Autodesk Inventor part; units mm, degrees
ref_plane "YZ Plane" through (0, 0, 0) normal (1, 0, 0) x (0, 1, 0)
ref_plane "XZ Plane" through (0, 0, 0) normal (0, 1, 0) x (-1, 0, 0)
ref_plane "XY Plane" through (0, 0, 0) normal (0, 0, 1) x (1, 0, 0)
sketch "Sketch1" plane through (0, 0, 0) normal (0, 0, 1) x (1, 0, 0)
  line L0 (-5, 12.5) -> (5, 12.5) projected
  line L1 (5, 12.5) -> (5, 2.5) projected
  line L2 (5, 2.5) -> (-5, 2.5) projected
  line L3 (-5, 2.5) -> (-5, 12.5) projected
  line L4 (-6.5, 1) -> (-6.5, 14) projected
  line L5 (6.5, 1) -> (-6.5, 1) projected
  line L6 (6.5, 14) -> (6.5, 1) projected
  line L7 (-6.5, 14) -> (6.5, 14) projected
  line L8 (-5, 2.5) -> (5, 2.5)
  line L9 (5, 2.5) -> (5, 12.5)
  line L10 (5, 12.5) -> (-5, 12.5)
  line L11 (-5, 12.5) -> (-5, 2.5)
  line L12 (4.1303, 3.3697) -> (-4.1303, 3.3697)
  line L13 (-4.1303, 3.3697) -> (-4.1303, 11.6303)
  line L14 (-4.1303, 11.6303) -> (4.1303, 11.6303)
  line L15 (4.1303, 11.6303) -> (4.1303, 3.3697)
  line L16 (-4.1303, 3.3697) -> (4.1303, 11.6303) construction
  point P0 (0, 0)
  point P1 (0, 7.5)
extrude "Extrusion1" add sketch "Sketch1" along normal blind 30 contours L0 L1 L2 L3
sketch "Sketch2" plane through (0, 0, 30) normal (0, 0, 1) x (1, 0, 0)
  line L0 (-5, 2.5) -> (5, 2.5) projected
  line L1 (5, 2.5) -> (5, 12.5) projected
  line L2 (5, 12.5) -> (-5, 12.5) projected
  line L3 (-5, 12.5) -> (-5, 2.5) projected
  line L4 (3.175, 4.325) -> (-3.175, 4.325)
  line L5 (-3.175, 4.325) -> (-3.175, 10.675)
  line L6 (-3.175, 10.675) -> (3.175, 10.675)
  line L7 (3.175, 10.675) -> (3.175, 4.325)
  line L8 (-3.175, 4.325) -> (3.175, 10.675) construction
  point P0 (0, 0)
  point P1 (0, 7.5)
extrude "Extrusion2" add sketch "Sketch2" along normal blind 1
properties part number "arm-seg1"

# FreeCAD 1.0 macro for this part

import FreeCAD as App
import Part
import Sketcher
from FreeCAD import Vector

doc = App.newDocument("Part")
params = doc.addObject("Spreadsheet::Sheet", "Params")
for row, (alias, value) in enumerate([
    ("sketch1_width", "10 mm"),
    ("pad1_length", "30 mm"),
    ("sketch2_width", "10 mm"),
    ("sketch2_width2", "6.35 mm"),
    ("pad2_length", "1 mm"),
], start=1):
    params.set(f"A{row}", alias)
    params.set(f"B{row}", "=" + value)
    params.setAlias(f"B{row}", alias)

body = doc.addObject("PartDesign::Body", "Body")

# Sketch on XY plane
sketch1 = body.newObject("Sketcher::SketchObject", "Sketch")
sketch1.AttachmentSupport = (doc.getObject("XY_Plane"), [""])
sketch1.MapMode = "FlatFace"
sketch1.addGeometry(Part.LineSegment(Vector(5, 12.5, 0), Vector(-5, 12.5, 0)), False)
sketch1.addGeometry(Part.LineSegment(Vector(-5, 12.5, 0), Vector(-5, 2.5, 0)), False)
sketch1.addGeometry(Part.LineSegment(Vector(-5, 2.5, 0), Vector(5, 2.5, 0)), False)
sketch1.addGeometry(Part.LineSegment(Vector(5, 2.5, 0), Vector(5, 12.5, 0)), False)
sketch1.addGeometry(Part.LineSegment(Vector(4.1303, 11.6303, 0), Vector(4.1303, 3.3697, 0)), False)
sketch1.addGeometry(Part.LineSegment(Vector(4.1303, 3.3697, 0), Vector(-4.1303, 3.3697, 0)), False)
sketch1.addGeometry(Part.LineSegment(Vector(-4.1303, 3.3697, 0), Vector(-4.1303, 11.6303, 0)), False)
sketch1.addGeometry(Part.LineSegment(Vector(-4.1303, 11.6303, 0), Vector(4.1303, 11.6303, 0)), False)
sketch1.addConstraint(Sketcher.Constraint("Coincident", 0, 2, 1, 1))
sketch1.addConstraint(Sketcher.Constraint("Coincident", 1, 2, 2, 1))
sketch1.addConstraint(Sketcher.Constraint("Coincident", 2, 2, 3, 1))
sketch1.addConstraint(Sketcher.Constraint("Coincident", 3, 2, 0, 1))
sketch1.addConstraint(Sketcher.Constraint("Coincident", 4, 2, 5, 1))
sketch1.addConstraint(Sketcher.Constraint("Coincident", 5, 2, 6, 1))
sketch1.addConstraint(Sketcher.Constraint("Coincident", 6, 2, 7, 1))
sketch1.addConstraint(Sketcher.Constraint("Coincident", 7, 2, 4, 1))
sketch1.addConstraint(Sketcher.Constraint("Horizontal", 0))
sketch1.addConstraint(Sketcher.Constraint("Vertical", 1))
sketch1.addConstraint(Sketcher.Constraint("Horizontal", 2))
sketch1.addConstraint(Sketcher.Constraint("Vertical", 3))
sketch1.addConstraint(Sketcher.Constraint("Vertical", 4))
sketch1.addConstraint(Sketcher.Constraint("Horizontal", 5))
sketch1.addConstraint(Sketcher.Constraint("Vertical", 6))
sketch1.addConstraint(Sketcher.Constraint("Horizontal", 7))
sketch1.addConstraint(Sketcher.Constraint("Equal", 2, 1))
sketch1.addConstraint(Sketcher.Constraint("Equal", 7, 4))
sketch1.addConstraint(Sketcher.Constraint("DistanceX", 0, 2, 0, 1, 10.0))
sketch1.addConstraint(Sketcher.Constraint("DistanceX", 0, 2, -1, 1, 5.0))
sketch1.addConstraint(Sketcher.Constraint("DistanceY", -1, 1, 0, 2, 12.5))
sketch1.addConstraint(Sketcher.Constraint("DistanceX", 5, 2, 5, 1, 8.2606))
sketch1.addConstraint(Sketcher.Constraint("DistanceX", -1, 1, 4, 2, 4.1303))
sketch1.addConstraint(Sketcher.Constraint("DistanceY", -1, 1, 4, 2, 3.3697))
sketch1.setExpression("Constraints[18]", "Params.sketch1_width")
pad1 = body.newObject("PartDesign::Pad", "Pad")
pad1.Profile = sketch1
pad1.setExpression("Length", "Params.pad1_length")

# Sketch on XY plane
sketch2 = body.newObject("Sketcher::SketchObject", "Sketch001")
sketch2.AttachmentSupport = (doc.getObject("XY_Plane"), [""])
sketch2.MapMode = "FlatFace"
sketch2.AttachmentOffset = App.Placement(Vector(0, 0, 30), App.Rotation())
sketch2.addGeometry(Part.LineSegment(Vector(-5, 12.5, 0), Vector(-5, 2.5, 0)), False)
sketch2.addGeometry(Part.LineSegment(Vector(-5, 2.5, 0), Vector(5, 2.5, 0)), False)
sketch2.addGeometry(Part.LineSegment(Vector(5, 2.5, 0), Vector(5, 12.5, 0)), False)
sketch2.addGeometry(Part.LineSegment(Vector(5, 12.5, 0), Vector(-5, 12.5, 0)), False)
sketch2.addGeometry(Part.LineSegment(Vector(3.175, 10.675, 0), Vector(3.175, 4.325, 0)), False)
sketch2.addGeometry(Part.LineSegment(Vector(3.175, 4.325, 0), Vector(-3.175, 4.325, 0)), False)
sketch2.addGeometry(Part.LineSegment(Vector(-3.175, 4.325, 0), Vector(-3.175, 10.675, 0)), False)
sketch2.addGeometry(Part.LineSegment(Vector(-3.175, 10.675, 0), Vector(3.175, 10.675, 0)), False)
sketch2.addConstraint(Sketcher.Constraint("Coincident", 0, 2, 1, 1))
sketch2.addConstraint(Sketcher.Constraint("Coincident", 1, 2, 2, 1))
sketch2.addConstraint(Sketcher.Constraint("Coincident", 2, 2, 3, 1))
sketch2.addConstraint(Sketcher.Constraint("Coincident", 3, 2, 0, 1))
sketch2.addConstraint(Sketcher.Constraint("Coincident", 4, 2, 5, 1))
sketch2.addConstraint(Sketcher.Constraint("Coincident", 5, 2, 6, 1))
sketch2.addConstraint(Sketcher.Constraint("Coincident", 6, 2, 7, 1))
sketch2.addConstraint(Sketcher.Constraint("Coincident", 7, 2, 4, 1))
sketch2.addConstraint(Sketcher.Constraint("Vertical", 0))
sketch2.addConstraint(Sketcher.Constraint("Horizontal", 1))
sketch2.addConstraint(Sketcher.Constraint("Vertical", 2))
sketch2.addConstraint(Sketcher.Constraint("Horizontal", 3))
sketch2.addConstraint(Sketcher.Constraint("Vertical", 4))
sketch2.addConstraint(Sketcher.Constraint("Horizontal", 5))
sketch2.addConstraint(Sketcher.Constraint("Vertical", 6))
sketch2.addConstraint(Sketcher.Constraint("Horizontal", 7))
sketch2.addConstraint(Sketcher.Constraint("Equal", 3, 0))
sketch2.addConstraint(Sketcher.Constraint("Equal", 7, 4))
sketch2.addConstraint(Sketcher.Constraint("DistanceX", 1, 1, 1, 2, 10.0))
sketch2.addConstraint(Sketcher.Constraint("DistanceX", 0, 2, -1, 1, 5.0))
sketch2.addConstraint(Sketcher.Constraint("DistanceX", 5, 2, 5, 1, 6.35))
sketch2.addConstraint(Sketcher.Constraint("DistanceY", -1, 1, 0, 2, 2.5))
sketch2.addConstraint(Sketcher.Constraint("DistanceX", -1, 1, 4, 2, 3.175))
sketch2.addConstraint(Sketcher.Constraint("DistanceY", -1, 1, 4, 2, 4.325))
sketch2.setExpression("Constraints[18]", "Params.sketch2_width")
sketch2.setExpression("Constraints[20]", "Params.sketch2_width2")
pad2 = body.newObject("PartDesign::Pad", "Pad001")
pad2.Profile = sketch2
pad2.setExpression("Length", "Params.pad2_length")

doc.recompute()
